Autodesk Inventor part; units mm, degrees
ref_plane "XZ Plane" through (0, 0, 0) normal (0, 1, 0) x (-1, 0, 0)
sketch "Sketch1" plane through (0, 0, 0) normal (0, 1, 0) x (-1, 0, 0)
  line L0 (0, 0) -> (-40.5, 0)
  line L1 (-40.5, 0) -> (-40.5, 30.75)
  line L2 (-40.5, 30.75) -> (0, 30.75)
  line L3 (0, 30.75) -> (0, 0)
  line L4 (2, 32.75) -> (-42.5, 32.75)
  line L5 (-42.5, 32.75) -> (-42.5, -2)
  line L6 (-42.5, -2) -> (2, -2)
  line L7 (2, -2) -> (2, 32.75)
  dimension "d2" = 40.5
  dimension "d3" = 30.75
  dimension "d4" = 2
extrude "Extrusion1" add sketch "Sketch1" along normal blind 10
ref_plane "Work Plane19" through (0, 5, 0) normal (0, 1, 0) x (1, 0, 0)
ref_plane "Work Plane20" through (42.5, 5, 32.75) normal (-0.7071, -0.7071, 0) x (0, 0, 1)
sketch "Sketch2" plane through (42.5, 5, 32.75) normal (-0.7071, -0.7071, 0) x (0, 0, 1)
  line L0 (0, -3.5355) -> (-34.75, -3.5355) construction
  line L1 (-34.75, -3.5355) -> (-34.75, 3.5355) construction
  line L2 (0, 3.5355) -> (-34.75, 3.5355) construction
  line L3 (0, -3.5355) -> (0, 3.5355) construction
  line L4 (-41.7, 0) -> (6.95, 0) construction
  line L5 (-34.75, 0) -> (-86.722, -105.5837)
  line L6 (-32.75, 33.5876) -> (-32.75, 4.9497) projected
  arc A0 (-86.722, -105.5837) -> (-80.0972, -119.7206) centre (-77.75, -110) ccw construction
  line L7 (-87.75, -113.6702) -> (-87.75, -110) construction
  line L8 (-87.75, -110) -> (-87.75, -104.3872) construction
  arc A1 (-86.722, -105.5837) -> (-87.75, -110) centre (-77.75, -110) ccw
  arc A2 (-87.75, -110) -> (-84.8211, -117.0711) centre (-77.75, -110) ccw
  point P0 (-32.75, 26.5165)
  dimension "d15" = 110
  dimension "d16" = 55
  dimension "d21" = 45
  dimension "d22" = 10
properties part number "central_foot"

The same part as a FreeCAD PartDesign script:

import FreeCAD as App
import Part
import Sketcher

V = App.Vector


def add_polygon(sketch, points):
    """Adds a closed chain of lines whose ends are joined by coincident constraints."""
    first, n = sketch.GeometryCount, len(points)
    for a, b in zip(points, points[1:] + points[:1]):
        sketch.addGeometry(Part.LineSegment(App.Vector(*a, 0), App.Vector(*b, 0)), False)
    for i in range(n):
        sketch.addConstraint(Sketcher.Constraint("Coincident", first + i, 2, first + (i + 1) % n, 1))

doc = App.newDocument("Part")
body = doc.addObject("PartDesign::Body", "Body")

sketch1 = body.newObject("Sketcher::SketchObject", "Sketch")
sketch1.AttachmentSupport = (doc.getObject("XZ_Plane"), [""])
sketch1.MapMode = "FlatFace"
add_polygon(sketch1, [(-2, -2), (-2, 33), (42, 33), (42, -2)])
add_polygon(sketch1, [(0, 31), (0, 0), (40, 0), (40, 31)])
sketch1.addConstraint([
    Sketcher.Constraint("Vertical", 0),
    Sketcher.Constraint("Horizontal", 1),
    Sketcher.Constraint("Vertical", 2),
    Sketcher.Constraint("Horizontal", 3),
    Sketcher.Constraint("Vertical", 4),
    Sketcher.Constraint("Horizontal", 5),
    Sketcher.Constraint("Vertical", 6),
    Sketcher.Constraint("Horizontal", 7),
    Sketcher.Constraint("Coincident", 4, 2, -1, 1),
    Sketcher.Constraint("DistanceX", 5, 1, 5, 2, 40.5),
    Sketcher.Constraint("DistanceX", 0, 2, -1, 1, 2.0),
    Sketcher.Constraint("DistanceY", 2, 2, -1, 1, 2.0),
    Sketcher.Constraint("DistanceX", 5, 2, 2, 2, 2.0),
    Sketcher.Constraint("DistanceY", 6, 2, 1, 2, 2.0),
    Sketcher.Constraint("DistanceY", 4, 2, 4, 1, 30.75),
])
pad1 = body.newObject("PartDesign::Pad", "Pad")
pad1.Profile = sketch1
pad1.Length = 10
pad1.Reversed = True

doc.recompute()
